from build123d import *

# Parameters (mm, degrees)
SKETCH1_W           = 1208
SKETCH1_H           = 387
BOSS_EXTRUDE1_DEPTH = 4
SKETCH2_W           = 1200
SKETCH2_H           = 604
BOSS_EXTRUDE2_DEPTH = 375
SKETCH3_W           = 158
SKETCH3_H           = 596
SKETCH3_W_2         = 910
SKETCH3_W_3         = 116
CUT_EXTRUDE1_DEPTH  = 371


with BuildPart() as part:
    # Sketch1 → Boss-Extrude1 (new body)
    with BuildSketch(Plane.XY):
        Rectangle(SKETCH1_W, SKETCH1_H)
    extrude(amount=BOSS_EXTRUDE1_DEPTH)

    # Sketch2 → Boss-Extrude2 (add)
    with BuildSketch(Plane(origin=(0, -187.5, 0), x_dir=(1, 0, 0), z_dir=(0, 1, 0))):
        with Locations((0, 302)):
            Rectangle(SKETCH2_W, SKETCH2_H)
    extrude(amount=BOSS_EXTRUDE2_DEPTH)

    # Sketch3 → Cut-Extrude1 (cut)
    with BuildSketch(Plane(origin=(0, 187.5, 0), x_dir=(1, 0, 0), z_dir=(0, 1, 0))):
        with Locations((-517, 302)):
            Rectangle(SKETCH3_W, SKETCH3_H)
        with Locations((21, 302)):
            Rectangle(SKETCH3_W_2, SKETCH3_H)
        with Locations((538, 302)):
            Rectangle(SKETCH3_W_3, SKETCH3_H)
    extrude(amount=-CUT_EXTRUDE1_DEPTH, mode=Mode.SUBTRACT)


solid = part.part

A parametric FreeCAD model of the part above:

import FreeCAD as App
import Part
import Sketcher

V = App.Vector


def add_polygon(sketch, points):
    """Adds a closed chain of lines whose ends are joined by coincident constraints."""
    first, n = sketch.GeometryCount, len(points)
    for a, b in zip(points, points[1:] + points[:1]):
        sketch.addGeometry(Part.LineSegment(App.Vector(*a, 0), App.Vector(*b, 0)), False)
    for i in range(n):
        sketch.addConstraint(Sketcher.Constraint("Coincident", first + i, 2, first + (i + 1) % n, 1))

doc = App.newDocument("Part")
body = doc.addObject("PartDesign::Body", "Body")

sketch1 = doc.addObject("Sketcher::SketchObject", "Sketch")
body.addObject(sketch1)
sketch1.AttachmentSupport = (doc.XY_Plane, [""])
sketch1.MapMode = "FlatFace"
add_polygon(sketch1, [(-604, 194), (-604, -194), (604, -194), (604, 194)])
sketch1.addConstraint([
    Sketcher.Constraint("Vertical", 0),
    Sketcher.Constraint("Horizontal", 1),
    Sketcher.Constraint("Vertical", 2),
    Sketcher.Constraint("Horizontal", 3),
    Sketcher.Constraint("Symmetric", 0, 2, 2, 2, -1, 1),
    Sketcher.Constraint("DistanceX", 1, 1, 1, 2, 1208.0),
    Sketcher.Constraint("DistanceY", 0, 2, 0, 1, 387.0),
])
pad1 = doc.addObject("PartDesign::Pad", "Pad")
body.addObject(pad1)
pad1.Profile = sketch1
pad1.Length = 4

sketch2 = doc.addObject("Sketcher::SketchObject", "Sketch001")
body.addObject(sketch2)
sketch2.AttachmentSupport = (doc.XZ_Plane, [""])
sketch2.MapMode = "FlatFace"
sketch2.AttachmentOffset = App.Placement(V(0, 0, 187.5), App.Rotation())
add_polygon(sketch2, [(-600, -604), (-600, 0), (600, 0), (600, -604)])
sketch2.addConstraint([
    Sketcher.Constraint("Vertical", 0),
    Sketcher.Constraint("Horizontal", 1),
    Sketcher.Constraint("Vertical", 2),
    Sketcher.Constraint("Horizontal", 3),
    Sketcher.Constraint("Symmetric", 0, 2, 1, 2, -1, 1),
    Sketcher.Constraint("DistanceX", 1, 1, 1, 2, 1200.0),
    Sketcher.Constraint("DistanceY", 0, 1, 0, 2, 604.0),
])
pad2 = doc.addObject("PartDesign::Pad", "Pad001")
body.addObject(pad2)
pad2.Profile = sketch2
pad2.Length = 375
pad2.Reversed = True

sketch3 = doc.addObject("Sketcher::SketchObject", "Sketch002")
body.addObject(sketch3)
sketch3.AttachmentSupport = (doc.XZ_Plane, [""])
sketch3.MapMode = "FlatFace"
sketch3.AttachmentOffset = App.Placement(V(0, 0, -187.5), App.Rotation())
add_polygon(sketch3, [(-596, -600), (-596, -4), (-438, -4), (-438, -600)])
add_polygon(sketch3, [(-434, -600), (-434, -4), (476, -4), (476, -600)])
add_polygon(sketch3, [(480, -600), (480, -4), (596, -4), (596, -600)])
sketch3.addConstraint([
    Sketcher.Constraint("Vertical", 0),
    Sketcher.Constraint("Horizontal", 1),
    Sketcher.Constraint("Vertical", 2),
    Sketcher.Constraint("Horizontal", 3),
    Sketcher.Constraint("Vertical", 4),
    Sketcher.Constraint("Horizontal", 5),
    Sketcher.Constraint("Vertical", 6),
    Sketcher.Constraint("Horizontal", 7),
    Sketcher.Constraint("Vertical", 8),
    Sketcher.Constraint("Horizontal", 9),
    Sketcher.Constraint("Vertical", 10),
    Sketcher.Constraint("Horizontal", 11),
    Sketcher.Constraint("Symmetric", 0, 2, 9, 2, -2),
    Sketcher.Constraint("Horizontal", 1, 2, 4, 2),
    Sketcher.Constraint("Horizontal", 3, 2, 6, 2),
    Sketcher.Constraint("Horizontal", 7, 2, 10, 2),
    Sketcher.Constraint("DistanceX", 1, 1, 1, 2, 158.0),
    Sketcher.Constraint("DistanceX", 5, 1, 5, 2, 910.0),
    Sketcher.Constraint("DistanceX", 9, 1, 9, 2, 116.0),
    Sketcher.Constraint("DistanceY", 0, 1, 0, 2, 596.0),
    Sketcher.Constraint("DistanceX", 0, 2, -1, 1, 596.0),
    Sketcher.Constraint("DistanceY", 0, 2, -1, 1, 4.0),
    Sketcher.Constraint("DistanceX", 4, 2, -1, 1, 434.0),
])
pocket1 = doc.addObject("PartDesign::Pocket", "Pocket")
body.addObject(pocket1)
pocket1.Profile = sketch3
pocket1.Length = 371
pocket1.Reversed = True

doc.recompute()
